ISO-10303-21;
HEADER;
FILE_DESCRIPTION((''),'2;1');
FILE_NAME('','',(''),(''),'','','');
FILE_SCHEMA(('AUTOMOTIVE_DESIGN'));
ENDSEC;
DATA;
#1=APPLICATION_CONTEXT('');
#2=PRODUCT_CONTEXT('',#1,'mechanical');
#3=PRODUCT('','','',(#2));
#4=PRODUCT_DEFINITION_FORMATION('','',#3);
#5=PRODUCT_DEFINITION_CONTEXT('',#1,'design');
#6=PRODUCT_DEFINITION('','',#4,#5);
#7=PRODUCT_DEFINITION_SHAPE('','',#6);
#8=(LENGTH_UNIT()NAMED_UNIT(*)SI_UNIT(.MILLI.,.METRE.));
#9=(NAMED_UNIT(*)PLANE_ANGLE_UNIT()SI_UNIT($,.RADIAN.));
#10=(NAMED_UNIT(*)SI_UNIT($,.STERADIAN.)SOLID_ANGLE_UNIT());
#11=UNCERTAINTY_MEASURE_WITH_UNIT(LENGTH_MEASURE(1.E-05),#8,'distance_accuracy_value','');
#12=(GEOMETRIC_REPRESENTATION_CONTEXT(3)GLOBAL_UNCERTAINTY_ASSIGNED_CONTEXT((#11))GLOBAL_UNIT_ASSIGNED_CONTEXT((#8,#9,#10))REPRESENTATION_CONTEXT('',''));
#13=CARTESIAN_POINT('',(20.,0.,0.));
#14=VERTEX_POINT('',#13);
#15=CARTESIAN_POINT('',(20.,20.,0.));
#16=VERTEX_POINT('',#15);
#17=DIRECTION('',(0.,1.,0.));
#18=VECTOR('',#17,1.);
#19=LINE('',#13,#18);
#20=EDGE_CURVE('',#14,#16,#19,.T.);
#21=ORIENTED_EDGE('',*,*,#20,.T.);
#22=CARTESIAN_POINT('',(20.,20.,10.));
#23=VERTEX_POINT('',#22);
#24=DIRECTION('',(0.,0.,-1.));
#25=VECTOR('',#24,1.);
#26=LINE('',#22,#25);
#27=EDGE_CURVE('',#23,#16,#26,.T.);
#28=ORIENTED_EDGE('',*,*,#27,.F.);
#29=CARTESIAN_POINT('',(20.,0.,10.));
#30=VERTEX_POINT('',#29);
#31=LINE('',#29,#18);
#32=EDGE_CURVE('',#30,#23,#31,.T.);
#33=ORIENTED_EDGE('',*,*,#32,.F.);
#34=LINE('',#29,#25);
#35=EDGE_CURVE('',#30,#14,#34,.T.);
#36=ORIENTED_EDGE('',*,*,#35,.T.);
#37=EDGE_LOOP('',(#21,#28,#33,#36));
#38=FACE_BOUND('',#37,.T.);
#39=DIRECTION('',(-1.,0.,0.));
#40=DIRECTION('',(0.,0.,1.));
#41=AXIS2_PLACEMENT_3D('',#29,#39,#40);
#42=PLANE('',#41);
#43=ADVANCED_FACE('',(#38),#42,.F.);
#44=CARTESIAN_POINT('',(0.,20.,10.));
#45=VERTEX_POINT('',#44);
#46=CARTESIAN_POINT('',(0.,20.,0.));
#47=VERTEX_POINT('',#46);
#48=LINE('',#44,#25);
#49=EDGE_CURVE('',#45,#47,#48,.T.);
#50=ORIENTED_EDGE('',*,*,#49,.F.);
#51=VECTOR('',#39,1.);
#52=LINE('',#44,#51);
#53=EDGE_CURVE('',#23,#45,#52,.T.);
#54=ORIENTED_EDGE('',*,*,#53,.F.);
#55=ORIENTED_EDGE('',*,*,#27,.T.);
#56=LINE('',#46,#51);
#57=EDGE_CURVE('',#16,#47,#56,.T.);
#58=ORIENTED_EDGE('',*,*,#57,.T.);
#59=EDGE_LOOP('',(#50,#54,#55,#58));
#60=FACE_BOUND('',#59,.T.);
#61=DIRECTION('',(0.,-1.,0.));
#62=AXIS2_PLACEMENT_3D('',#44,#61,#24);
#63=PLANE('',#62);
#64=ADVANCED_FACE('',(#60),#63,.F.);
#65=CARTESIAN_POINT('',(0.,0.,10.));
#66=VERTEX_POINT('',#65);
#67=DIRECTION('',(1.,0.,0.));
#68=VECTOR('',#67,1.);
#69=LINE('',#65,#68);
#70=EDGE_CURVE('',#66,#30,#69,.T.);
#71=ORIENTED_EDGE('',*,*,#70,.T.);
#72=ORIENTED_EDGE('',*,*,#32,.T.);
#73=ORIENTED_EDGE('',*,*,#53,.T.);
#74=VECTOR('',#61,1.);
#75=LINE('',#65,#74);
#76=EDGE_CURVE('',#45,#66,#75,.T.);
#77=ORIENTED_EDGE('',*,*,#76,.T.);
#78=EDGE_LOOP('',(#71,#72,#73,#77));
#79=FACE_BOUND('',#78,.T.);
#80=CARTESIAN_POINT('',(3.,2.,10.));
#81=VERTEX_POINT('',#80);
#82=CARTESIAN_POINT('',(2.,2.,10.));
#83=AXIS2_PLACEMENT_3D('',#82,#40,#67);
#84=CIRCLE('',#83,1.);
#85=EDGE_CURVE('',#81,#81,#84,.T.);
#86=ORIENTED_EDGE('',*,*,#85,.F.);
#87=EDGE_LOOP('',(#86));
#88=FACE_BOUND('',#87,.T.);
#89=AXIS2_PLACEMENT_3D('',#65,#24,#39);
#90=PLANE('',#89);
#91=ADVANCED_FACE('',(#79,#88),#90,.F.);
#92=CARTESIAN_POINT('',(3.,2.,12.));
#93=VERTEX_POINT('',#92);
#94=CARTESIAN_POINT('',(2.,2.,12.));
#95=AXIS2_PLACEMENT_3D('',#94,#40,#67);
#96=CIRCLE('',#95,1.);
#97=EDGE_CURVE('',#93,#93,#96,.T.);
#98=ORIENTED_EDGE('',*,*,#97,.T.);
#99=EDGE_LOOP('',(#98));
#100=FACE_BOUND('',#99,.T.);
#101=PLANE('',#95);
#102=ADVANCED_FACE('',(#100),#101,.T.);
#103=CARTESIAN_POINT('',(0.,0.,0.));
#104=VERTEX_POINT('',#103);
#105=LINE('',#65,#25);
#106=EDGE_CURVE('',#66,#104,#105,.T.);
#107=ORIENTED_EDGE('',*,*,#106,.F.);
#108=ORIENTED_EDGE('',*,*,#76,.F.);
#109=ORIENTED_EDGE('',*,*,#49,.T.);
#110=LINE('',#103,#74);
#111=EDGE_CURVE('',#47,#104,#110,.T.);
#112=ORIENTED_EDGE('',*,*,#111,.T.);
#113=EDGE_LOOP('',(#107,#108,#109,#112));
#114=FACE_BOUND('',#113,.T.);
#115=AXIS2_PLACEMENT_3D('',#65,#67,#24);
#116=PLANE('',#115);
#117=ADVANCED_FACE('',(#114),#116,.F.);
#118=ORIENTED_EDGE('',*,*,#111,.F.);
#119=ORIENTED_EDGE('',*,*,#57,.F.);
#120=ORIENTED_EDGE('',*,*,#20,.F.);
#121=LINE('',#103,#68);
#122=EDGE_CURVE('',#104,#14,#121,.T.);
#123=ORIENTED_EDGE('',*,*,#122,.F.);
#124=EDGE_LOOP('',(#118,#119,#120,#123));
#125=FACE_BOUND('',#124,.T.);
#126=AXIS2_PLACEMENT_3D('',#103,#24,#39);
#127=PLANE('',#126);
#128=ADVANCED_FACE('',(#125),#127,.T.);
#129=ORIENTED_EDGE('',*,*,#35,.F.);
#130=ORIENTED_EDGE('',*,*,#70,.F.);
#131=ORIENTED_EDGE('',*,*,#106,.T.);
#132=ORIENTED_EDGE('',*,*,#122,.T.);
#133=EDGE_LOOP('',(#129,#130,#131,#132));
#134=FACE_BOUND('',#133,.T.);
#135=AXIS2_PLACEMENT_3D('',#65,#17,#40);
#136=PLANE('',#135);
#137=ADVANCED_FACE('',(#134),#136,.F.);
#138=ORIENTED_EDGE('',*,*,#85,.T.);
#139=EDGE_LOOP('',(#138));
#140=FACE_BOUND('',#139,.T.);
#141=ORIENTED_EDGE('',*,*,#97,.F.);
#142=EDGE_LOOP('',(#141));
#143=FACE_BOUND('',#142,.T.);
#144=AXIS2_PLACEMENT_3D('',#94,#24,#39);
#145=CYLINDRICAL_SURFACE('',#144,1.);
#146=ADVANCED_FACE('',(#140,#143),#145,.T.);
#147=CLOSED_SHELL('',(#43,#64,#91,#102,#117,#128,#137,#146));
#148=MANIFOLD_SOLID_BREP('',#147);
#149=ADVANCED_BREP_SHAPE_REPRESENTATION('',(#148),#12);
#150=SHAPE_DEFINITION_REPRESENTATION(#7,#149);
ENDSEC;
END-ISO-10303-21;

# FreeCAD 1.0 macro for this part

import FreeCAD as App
import Part
import Sketcher


def add_polygon(sketch, points):
    """Adds a closed chain of lines whose ends are joined by coincident constraints."""
    first, n = sketch.GeometryCount, len(points)
    for a, b in zip(points, points[1:] + points[:1]):
        sketch.addGeometry(Part.LineSegment(App.Vector(*a, 0), App.Vector(*b, 0)), False)
    for i in range(n):
        sketch.addConstraint(Sketcher.Constraint("Coincident", first + i, 2, first + (i + 1) % n, 1))

doc = App.newDocument("Part")
params = doc.addObject("Spreadsheet::Sheet", "Params")
for row, (alias, value) in enumerate([
    ("sketch1_width", "20 mm"),
    ("pad1_length", "10 mm"),
    ("sketch2_diameter", "2 mm"),
    ("pad2_length", "2 mm"),
], start=1):
    params.set(f"A{row}", alias)
    params.set(f"B{row}", "=" + value)
    params.setAlias(f"B{row}", alias)

body = doc.addObject("PartDesign::Body", "Body")

# Sketch on XY plane
sketch1 = body.newObject("Sketcher::SketchObject", "Sketch")
sketch1.AttachmentSupport = (doc.getObject("XY_Plane"), [""])
sketch1.MapMode = "FlatFace"
add_polygon(sketch1, [(0, 20), (0, 0), (20, 0), (20, 20)])  # lines 0-3
sketch1.addConstraint([
    Sketcher.Constraint("Vertical", 0),
    Sketcher.Constraint("Horizontal", 1),
    Sketcher.Constraint("Vertical", 2),
    Sketcher.Constraint("Horizontal", 3),
    Sketcher.Constraint("Coincident", 0, 2, -1, 1),
    Sketcher.Constraint("Equal", 3, 0),
    Sketcher.Constraint("DistanceX", 1, 1, 1, 2, 20.0),
])
sketch1.setExpression("Constraints[10]", "Params.sketch1_width")
pad1 = body.newObject("PartDesign::Pad", "Pad")
pad1.Profile = sketch1
pad1.setExpression("Length", "Params.pad1_length")

# Sketch on XY plane
sketch2 = body.newObject("Sketcher::SketchObject", "Sketch001")
sketch2.AttachmentSupport = (doc.getObject("XY_Plane"), [""])
sketch2.MapMode = "FlatFace"
sketch2.AttachmentOffset = App.Placement(App.Vector(0, 0, 10), App.Rotation())
sketch2.addGeometry(Part.Circle(App.Vector(2, 2, 0), App.Vector(0, 0, 1), 1), False)
sketch2.addConstraint([
    Sketcher.Constraint("Diameter", 0, 2.0),
    Sketcher.Constraint("DistanceX", -1, 1, 0, 3, 2.0),
    Sketcher.Constraint("DistanceY", -1, 1, 0, 3, 2.0),
])
sketch2.setExpression("Constraints[0]", "Params.sketch2_diameter")
pad2 = body.newObject("PartDesign::Pad", "Pad001")
pad2.Profile = sketch2
pad2.setExpression("Length", "Params.pad2_length")

doc.recompute()
